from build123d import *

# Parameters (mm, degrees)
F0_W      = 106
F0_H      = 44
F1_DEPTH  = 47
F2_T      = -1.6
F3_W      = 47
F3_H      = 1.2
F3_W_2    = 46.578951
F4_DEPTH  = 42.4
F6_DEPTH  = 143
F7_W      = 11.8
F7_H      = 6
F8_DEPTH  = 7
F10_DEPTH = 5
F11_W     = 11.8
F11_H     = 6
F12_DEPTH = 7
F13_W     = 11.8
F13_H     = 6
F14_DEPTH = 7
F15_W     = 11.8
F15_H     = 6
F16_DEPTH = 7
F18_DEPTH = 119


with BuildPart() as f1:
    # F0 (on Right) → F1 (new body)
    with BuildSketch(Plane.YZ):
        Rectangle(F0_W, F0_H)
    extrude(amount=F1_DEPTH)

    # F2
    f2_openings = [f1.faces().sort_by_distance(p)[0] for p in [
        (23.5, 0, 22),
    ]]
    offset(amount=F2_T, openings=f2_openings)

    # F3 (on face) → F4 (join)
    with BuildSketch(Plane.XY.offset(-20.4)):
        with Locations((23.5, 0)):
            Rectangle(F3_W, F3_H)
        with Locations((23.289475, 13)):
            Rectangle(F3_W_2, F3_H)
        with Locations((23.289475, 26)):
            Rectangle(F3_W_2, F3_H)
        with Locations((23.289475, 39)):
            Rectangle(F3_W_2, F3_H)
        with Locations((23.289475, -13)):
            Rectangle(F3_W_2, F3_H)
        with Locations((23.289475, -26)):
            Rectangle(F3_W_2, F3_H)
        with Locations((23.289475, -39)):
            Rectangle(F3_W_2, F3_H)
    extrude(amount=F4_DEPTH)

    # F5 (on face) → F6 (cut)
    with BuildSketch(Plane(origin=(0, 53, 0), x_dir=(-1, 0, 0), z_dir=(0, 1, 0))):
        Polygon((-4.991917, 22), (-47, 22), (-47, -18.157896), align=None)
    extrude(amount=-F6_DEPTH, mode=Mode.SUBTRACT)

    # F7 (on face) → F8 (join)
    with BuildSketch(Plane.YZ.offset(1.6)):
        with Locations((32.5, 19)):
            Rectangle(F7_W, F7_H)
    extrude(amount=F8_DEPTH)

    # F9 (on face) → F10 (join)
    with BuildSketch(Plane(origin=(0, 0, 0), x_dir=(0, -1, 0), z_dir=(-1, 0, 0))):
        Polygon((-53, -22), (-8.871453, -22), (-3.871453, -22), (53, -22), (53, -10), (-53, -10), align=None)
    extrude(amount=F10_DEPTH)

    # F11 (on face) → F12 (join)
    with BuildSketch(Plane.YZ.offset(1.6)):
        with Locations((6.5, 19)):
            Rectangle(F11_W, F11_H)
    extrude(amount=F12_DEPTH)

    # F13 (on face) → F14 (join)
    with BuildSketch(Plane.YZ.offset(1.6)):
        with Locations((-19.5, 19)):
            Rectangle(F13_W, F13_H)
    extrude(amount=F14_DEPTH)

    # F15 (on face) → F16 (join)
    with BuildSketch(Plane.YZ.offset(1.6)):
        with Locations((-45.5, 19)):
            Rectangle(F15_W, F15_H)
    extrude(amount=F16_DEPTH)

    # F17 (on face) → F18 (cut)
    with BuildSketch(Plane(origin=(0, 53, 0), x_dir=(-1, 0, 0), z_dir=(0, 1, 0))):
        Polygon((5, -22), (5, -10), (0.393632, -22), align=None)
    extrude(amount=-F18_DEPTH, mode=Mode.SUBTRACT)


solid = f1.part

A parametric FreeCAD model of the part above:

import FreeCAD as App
import Part
import Sketcher
Q = App.Units.Quantity


def faces_at(feature, points):
    """Names of the faces that lie closest to the given points."""
    faces = feature.Shape.Faces
    near = lambda p: min(range(len(faces)), key=lambda i: faces[i].distToShape(Part.Vertex(*p))[0])
    return sorted({f"Face{near(p) + 1}" for p in points})


def add_polygon(sketch, points):
    """Adds a closed chain of lines whose ends are joined by coincident constraints."""
    first, n = sketch.GeometryCount, len(points)
    for a, b in zip(points, points[1:] + points[:1]):
        sketch.addGeometry(Part.LineSegment(App.Vector(*a, 0), App.Vector(*b, 0)), False)
    for i in range(n):
        sketch.addConstraint(Sketcher.Constraint("Coincident", first + i, 2, first + (i + 1) % n, 1))

doc = App.newDocument("Part")
body = doc.addObject("PartDesign::Body", "Body")

# Sketch on YZ plane
sketch1 = body.newObject("Sketcher::SketchObject", "Sketch")
sketch1.AttachmentSupport = (doc.getObject("YZ_Plane"), [""])
sketch1.MapMode = "FlatFace"
add_polygon(sketch1, [(-53, 22), (-53, -22), (53, -22), (53, 22)])  # lines 0-3
sketch1.addConstraint([
    Sketcher.Constraint("Vertical", 0),
    Sketcher.Constraint("Horizontal", 1),
    Sketcher.Constraint("Vertical", 2),
    Sketcher.Constraint("Horizontal", 3),
    Sketcher.Constraint("Symmetric", 0, 2, 2, 2, -1, 1),
    Sketcher.Constraint("DistanceX", 1, 1, 1, 2, 106.0),
    Sketcher.Constraint("DistanceY", 0, 2, 0, 1, 44.0),
])
pad1 = body.newObject("PartDesign::Pad", "Pad")
pad1.Profile = sketch1
pad1.Length = 47
doc.recompute()

thickness = body.newObject("PartDesign::Thickness", "Thickness")
thickness.Base = (pad1, faces_at(pad1, [(23.5, 0, 22)]))
thickness.Value = 1.6
thickness.Reversed = True
thickness.Join = "Arc"

# Sketch on XY plane
sketch2 = body.newObject("Sketcher::SketchObject", "Sketch001")
sketch2.AttachmentSupport = (doc.getObject("XY_Plane"), [""])
sketch2.MapMode = "FlatFace"
sketch2.AttachmentOffset = App.Placement(App.Vector(0, 0, -20.4), App.Rotation())
add_polygon(sketch2, [(0, 0.6), (0, -0.6), (47, -0.6), (47, 0.6)])  # lines 0-3
add_polygon(sketch2, [(0, 13.6), (0, 12.4), (46.6, 12.4), (46.6, 13.6)])  # lines 4-7
add_polygon(sketch2, [(0, 26.6), (0, 25.4), (46.6, 25.4), (46.6, 26.6)])  # lines 8-11
add_polygon(sketch2, [(0, 39.6), (0, 38.4), (46.6, 38.4), (46.6, 39.6)])  # lines 12-15
add_polygon(sketch2, [(0, -12.4), (0, -13.6), (46.6, -13.6), (46.6, -12.4)])  # lines 16-19
add_polygon(sketch2, [(0, -25.4), (0, -26.6), (46.6, -26.6), (46.6, -25.4)])  # lines 20-23
add_polygon(sketch2, [(0, -38.4), (0, -39.6), (46.6, -39.6), (46.6, -38.4)])  # lines 24-27
sketch2.addConstraint([
    Sketcher.Constraint("Vertical", 0),
    Sketcher.Constraint("Horizontal", 1),
    Sketcher.Constraint("Vertical", 2),
    Sketcher.Constraint("Horizontal", 3),
    Sketcher.Constraint("Vertical", 4),
    Sketcher.Constraint("Horizontal", 5),
    Sketcher.Constraint("Vertical", 6),
    Sketcher.Constraint("Horizontal", 7),
    Sketcher.Constraint("Vertical", 8),
    Sketcher.Constraint("Horizontal", 9),
    Sketcher.Constraint("Vertical", 10),
    Sketcher.Constraint("Horizontal", 11),
    Sketcher.Constraint("Vertical", 12),
    Sketcher.Constraint("Horizontal", 13),
    Sketcher.Constraint("Vertical", 14),
    Sketcher.Constraint("Horizontal", 15),
    Sketcher.Constraint("Vertical", 16),
    Sketcher.Constraint("Horizontal", 17),
    Sketcher.Constraint("Vertical", 18),
    Sketcher.Constraint("Horizontal", 19),
    Sketcher.Constraint("Vertical", 20),
    Sketcher.Constraint("Horizontal", 21),
    Sketcher.Constraint("Vertical", 22),
    Sketcher.Constraint("Horizontal", 23),
    Sketcher.Constraint("Vertical", 24),
    Sketcher.Constraint("Horizontal", 25),
    Sketcher.Constraint("Vertical", 26),
    Sketcher.Constraint("Horizontal", 27),
    Sketcher.Constraint("Symmetric", 0, 2, 3, 2, -1, 1),
    Sketcher.Constraint("Symmetric", 7, 2, 16, 2, -1, 1),
    Sketcher.Constraint("Symmetric", 11, 2, 20, 2, -1, 1),
    Sketcher.Constraint("Symmetric", 15, 2, 24, 2, -1, 1),
    Sketcher.Constraint("Symmetric", 5, 2, 18, 2, -1),
    Sketcher.Constraint("Symmetric", 9, 2, 22, 2, -1),
    Sketcher.Constraint("Symmetric", 13, 2, 26, 2, -1),
    Sketcher.Constraint("PointOnObject", 4, 2, -2),
    Sketcher.Constraint("PointOnObject", 8, 2, -2),
    Sketcher.Constraint("PointOnObject", 12, 2, -2),
    Sketcher.Constraint("Vertical", 6, 2, 9, 2),
    Sketcher.Constraint("Vertical", 10, 2, 13, 2),
    Sketcher.Constraint("Equal", 2, 4),
    Sketcher.Constraint("Equal", 6, 8),
    Sketcher.Constraint("Equal", 10, 12),
    Sketcher.Constraint("DistanceX", 1, 1, 1, 2, 47.0),
    Sketcher.Constraint("DistanceY", 0, 2, 0, 1, 1.2),
    Sketcher.Constraint("DistanceY", 0, 2, 4, 2, 13.0),
    Sketcher.Constraint("DistanceY", 4, 2, 8, 2, 13.0),
    Sketcher.Constraint("DistanceY", 8, 2, 12, 2, 13.0),
    Sketcher.Constraint("DistanceX", 5, 1, 5, 2, 46.578951),
])
pad2 = body.newObject("PartDesign::Pad", "Pad001")
pad2.Profile = sketch2
pad2.Length = 42.4

# Sketch on XZ plane
sketch3 = body.newObject("Sketcher::SketchObject", "Sketch002")
sketch3.AttachmentSupport = (doc.getObject("XZ_Plane"), [""])
sketch3.MapMode = "FlatFace"
sketch3.AttachmentOffset = App.Placement(App.Vector(0, 0, -53), App.Rotation())
add_polygon(sketch3, [(5, 22), (47, 22), (47, -18)])  # lines 0-2
sketch3.addConstraint([
    Sketcher.Constraint("Horizontal", 0),
    Sketcher.Constraint("Vertical", 1),
    Sketcher.Constraint("DistanceX", -1, 1, 0, 2, 47.0),
    Sketcher.Constraint("DistanceY", -1, 1, 0, 2, 22.0),
    Sketcher.Constraint("Distance", 2, 58.114849),
    Sketcher.Constraint("DistanceX", 0, 1, 0, 2, 42.008083),
])
pocket1 = body.newObject("PartDesign::Pocket", "Pocket")
pocket1.Profile = sketch3
pocket1.Length = 143
pocket1.Reversed = True

# Sketch on YZ plane
sketch4 = body.newObject("Sketcher::SketchObject", "Sketch003")
sketch4.AttachmentSupport = (doc.getObject("YZ_Plane"), [""])
sketch4.MapMode = "FlatFace"
sketch4.AttachmentOffset = App.Placement(App.Vector(0, 0, 1.6), App.Rotation())
add_polygon(sketch4, [(27, 22), (27, 16), (38, 16), (38, 22)])  # lines 0-3
sketch4.addConstraint([
    Sketcher.Constraint("Vertical", 0),
    Sketcher.Constraint("Horizontal", 1),
    Sketcher.Constraint("Vertical", 2),
    Sketcher.Constraint("Horizontal", 3),
    Sketcher.Constraint("DistanceY", 0, 2, 0, 1, 6.0),
    Sketcher.Constraint("DistanceX", 1, 1, 1, 2, 11.8),
    Sketcher.Constraint("DistanceY", -1, 1, 0, 2, 16.0),
    Sketcher.Constraint("DistanceX", -1, 1, 0, 2, 26.6),
])
pad3 = body.newObject("PartDesign::Pad", "Pad002")
pad3.Profile = sketch4
pad3.Length = 7

# Sketch on YZ plane
sketch5 = body.newObject("Sketcher::SketchObject", "Sketch004")
sketch5.AttachmentSupport = (doc.getObject("YZ_Plane"), [""])
sketch5.MapMode = "FlatFace"
add_polygon(sketch5, [(53, -22), (-53, -22), (-53, -10), (53, -10)])  # lines 0-3
sketch5.addConstraint([
    Sketcher.Constraint("Horizontal", 0),
    Sketcher.Constraint("Vertical", 1),
    Sketcher.Constraint("Horizontal", 2),
    Sketcher.Constraint("Vertical", 3),
    Sketcher.Constraint("DistanceX", 0, 2, 0, 1, 106.0),
    Sketcher.Constraint("DistanceY", 1, 1, 1, 2, 12.0),
    Sketcher.Constraint("DistanceX", 0, 2, -1, 1, 53.0),
    Sketcher.Constraint("DistanceY", 0, 2, -1, 1, 22.0),
])
pad4 = body.newObject("PartDesign::Pad", "Pad003")
pad4.Profile = sketch5
pad4.Length = 5
pad4.Reversed = True

# Sketch on YZ plane
sketch6 = body.newObject("Sketcher::SketchObject", "Sketch005")
sketch6.AttachmentSupport = (doc.getObject("YZ_Plane"), [""])
sketch6.MapMode = "FlatFace"
sketch6.AttachmentOffset = App.Placement(App.Vector(0, 0, 1.6), App.Rotation())
add_polygon(sketch6, [(1, 22), (1, 16), (12, 16), (12, 22)])  # lines 0-3
sketch6.addConstraint([
    Sketcher.Constraint("Vertical", 0),
    Sketcher.Constraint("Horizontal", 1),
    Sketcher.Constraint("Vertical", 2),
    Sketcher.Constraint("Horizontal", 3),
    Sketcher.Constraint("DistanceY", 0, 2, 0, 1, 6.0),
    Sketcher.Constraint("DistanceX", 1, 1, 1, 2, 11.8),
    Sketcher.Constraint("DistanceY", -1, 1, 0, 2, 16.0),
    Sketcher.Constraint("DistanceX", -1, 1, 0, 2, 0.6),
])
pad5 = body.newObject("PartDesign::Pad", "Pad004")
pad5.Profile = sketch6
pad5.Length = 7

# Sketch on YZ plane
sketch7 = body.newObject("Sketcher::SketchObject", "Sketch006")
sketch7.AttachmentSupport = (doc.getObject("YZ_Plane"), [""])
sketch7.MapMode = "FlatFace"
sketch7.AttachmentOffset = App.Placement(App.Vector(0, 0, 1.6), App.Rotation())
add_polygon(sketch7, [(-25, 22), (-25, 16), (-14, 16), (-14, 22)])  # lines 0-3
sketch7.addConstraint([
    Sketcher.Constraint("Vertical", 0),
    Sketcher.Constraint("Horizontal", 1),
    Sketcher.Constraint("Vertical", 2),
    Sketcher.Constraint("Horizontal", 3),
    Sketcher.Constraint("DistanceY", 0, 2, 0, 1, 6.0),
    Sketcher.Constraint("DistanceX", 1, 1, 1, 2, 11.8),
    Sketcher.Constraint("DistanceY", -1, 1, 0, 2, 16.0),
    Sketcher.Constraint("DistanceX", 0, 2, -1, 1, 25.4),
])
pad6 = body.newObject("PartDesign::Pad", "Pad005")
pad6.Profile = sketch7
pad6.Length = 7

# Sketch on YZ plane
sketch8 = body.newObject("Sketcher::SketchObject", "Sketch007")
sketch8.AttachmentSupport = (doc.getObject("YZ_Plane"), [""])
sketch8.MapMode = "FlatFace"
sketch8.AttachmentOffset = App.Placement(App.Vector(0, 0, 1.6), App.Rotation())
add_polygon(sketch8, [(-51, 22), (-51, 16), (-40, 16), (-40, 22)])  # lines 0-3
sketch8.addConstraint([
    Sketcher.Constraint("Vertical", 0),
    Sketcher.Constraint("Horizontal", 1),
    Sketcher.Constraint("Vertical", 2),
    Sketcher.Constraint("Horizontal", 3),
    Sketcher.Constraint("DistanceY", 0, 2, 0, 1, 6.0),
    Sketcher.Constraint("DistanceX", 1, 1, 1, 2, 11.8),
    Sketcher.Constraint("DistanceY", -1, 1, 0, 2, 16.0),
    Sketcher.Constraint("DistanceX", 0, 2, -1, 1, 51.4),
])
pad7 = body.newObject("PartDesign::Pad", "Pad006")
pad7.Profile = sketch8
pad7.Length = 7

# Sketch on XZ plane
sketch9 = body.newObject("Sketcher::SketchObject", "Sketch008")
sketch9.AttachmentSupport = (doc.getObject("XZ_Plane"), [""])
sketch9.MapMode = "FlatFace"
sketch9.AttachmentOffset = App.Placement(App.Vector(0, 0, -53), App.Rotation())
add_polygon(sketch9, [(-5, -22), (-5, -10), (-0.4, -22)])  # lines 0-2
sketch9.addConstraint([
    Sketcher.Constraint("Vertical", 0),
    Sketcher.Constraint("Horizontal", 2),
    Sketcher.Constraint("DistanceY", 0, 1, 0, 2, 12.0),
    Sketcher.Constraint("Angle", 1, Q("-69.000002 deg")),
    Sketcher.Constraint("DistanceX", 0, 2, -1, 1, 5.0),
    Sketcher.Constraint("DistanceY", 0, 2, -1, 1, 10.0),
])
pocket2 = body.newObject("PartDesign::Pocket", "Pocket001")
pocket2.Profile = sketch9
pocket2.Length = 119
pocket2.Reversed = True

doc.recompute()
